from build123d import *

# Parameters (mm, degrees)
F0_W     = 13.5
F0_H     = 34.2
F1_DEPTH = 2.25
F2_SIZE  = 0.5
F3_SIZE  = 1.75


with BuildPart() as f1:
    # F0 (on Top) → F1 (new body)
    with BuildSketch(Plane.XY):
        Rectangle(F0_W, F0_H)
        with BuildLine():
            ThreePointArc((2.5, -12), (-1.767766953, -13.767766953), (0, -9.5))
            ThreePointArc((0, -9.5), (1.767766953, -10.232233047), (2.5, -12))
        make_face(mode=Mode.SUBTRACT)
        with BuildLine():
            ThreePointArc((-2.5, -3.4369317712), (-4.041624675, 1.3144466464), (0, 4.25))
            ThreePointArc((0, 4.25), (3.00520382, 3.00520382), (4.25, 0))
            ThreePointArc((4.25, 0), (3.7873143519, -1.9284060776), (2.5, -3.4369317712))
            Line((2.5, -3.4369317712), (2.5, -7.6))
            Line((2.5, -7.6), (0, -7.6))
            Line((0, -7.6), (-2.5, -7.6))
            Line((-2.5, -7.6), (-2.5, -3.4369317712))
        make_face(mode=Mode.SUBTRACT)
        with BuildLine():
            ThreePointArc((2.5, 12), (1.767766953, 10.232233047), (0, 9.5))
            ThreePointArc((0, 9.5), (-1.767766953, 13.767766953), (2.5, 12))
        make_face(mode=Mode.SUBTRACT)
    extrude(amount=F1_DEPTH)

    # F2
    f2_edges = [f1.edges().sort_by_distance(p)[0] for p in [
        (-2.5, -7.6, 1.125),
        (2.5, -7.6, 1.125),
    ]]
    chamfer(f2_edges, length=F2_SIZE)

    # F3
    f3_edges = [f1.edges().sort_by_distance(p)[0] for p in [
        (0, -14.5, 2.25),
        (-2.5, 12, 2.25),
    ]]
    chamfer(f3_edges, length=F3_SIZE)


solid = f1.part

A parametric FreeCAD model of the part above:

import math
import FreeCAD as App
import Part
import Sketcher
from FreeCAD import Vector
Q = App.Units.Quantity


def edges_at(feature, points):
    """Names of the edges that pass closest to the given points."""
    edges = feature.Shape.Edges
    near = lambda p: min(range(len(edges)), key=lambda i: edges[i].distToShape(Part.Vertex(*p))[0])
    return sorted({f"Edge{near(p) + 1}" for p in points})


def add_polygon(sketch, points):
    """Adds a closed chain of lines whose ends are joined by coincident constraints."""
    first, n = sketch.GeometryCount, len(points)
    for a, b in zip(points, points[1:] + points[:1]):
        sketch.addGeometry(Part.LineSegment(App.Vector(*a, 0), App.Vector(*b, 0)), False)
    for i in range(n):
        sketch.addConstraint(Sketcher.Constraint("Coincident", first + i, 2, first + (i + 1) % n, 1))

doc = App.newDocument("Part")
body = doc.addObject("PartDesign::Body", "Body")

# Sketch on XY plane
sketch1 = doc.addObject("Sketcher::SketchObject", "Sketch")
body.addObject(sketch1)
sketch1.AttachmentSupport = (doc.XY_Plane, [""])
sketch1.MapMode = "FlatFace"
add_polygon(sketch1, [(-6.8, 17.1), (-6.8, -17.1), (6.8, -17.1), (6.8, 17.1)])  # lines 0-3
sketch1.addGeometry(Part.ArcOfCircle(Part.Circle(Vector(0, -12, 0), Vector(0, 0, 1), 2.5), math.radians(0), math.radians(90)), False)  # 4
sketch1.addGeometry(Part.ArcOfCircle(Part.Circle(Vector(0, -12, 0), Vector(0, 0, 1), 2.5), math.radians(90), math.radians(360)), False)  # 5
sketch1.addGeometry(Part.LineSegment(Vector(-2.5, -7.6, 0), Vector(-2.5, -3.4, 0)), False)  # 6
sketch1.addGeometry(Part.ArcOfCircle(Part.Circle(Vector(0, 0, 0), Vector(0, 0, 1), 4.2), math.radians(90), math.radians(234)), False)  # 7
sketch1.addGeometry(Part.ArcOfCircle(Part.Circle(Vector(0, 0, 0), Vector(0, 0, 1), 4.2), math.radians(0), math.radians(90)), False)  # 8
sketch1.addGeometry(Part.ArcOfCircle(Part.Circle(Vector(0, 0, 0), Vector(0, 0, 1), 4.2), math.radians(-54), math.radians(0)), False)  # 9
sketch1.addGeometry(Part.LineSegment(Vector(2.5, -3.4, 0), Vector(2.5, -7.6, 0)), False)  # 10
sketch1.addGeometry(Part.LineSegment(Vector(2.5, -7.6, 0), Vector(-2.5, -7.6, 0)), False)  # 11
sketch1.addGeometry(Part.ArcOfCircle(Part.Circle(Vector(0, 12, 0), Vector(0, 0, 1), 2.5), math.radians(0), math.radians(270)), False)  # 12
sketch1.addGeometry(Part.ArcOfCircle(Part.Circle(Vector(0, 12, 0), Vector(0, 0, 1), 2.5), math.radians(-90), math.radians(0)), False)  # 13
sketch1.addConstraint([
    Sketcher.Constraint("Tangent", 4, 1, 5, 2),
    Sketcher.Constraint("Coincident", 5, 1, 4, 2),
    Sketcher.Constraint("Coincident", 6, 2, 7, 2),
    Sketcher.Constraint("Tangent", 7, 1, 8, 2),
    Sketcher.Constraint("Tangent", 8, 1, 9, 2),
    Sketcher.Constraint("Coincident", 9, 1, 10, 1),
    Sketcher.Constraint("Coincident", 10, 2, 11, 1),
    Sketcher.Constraint("Coincident", 11, 2, 6, 1),
    Sketcher.Constraint("Tangent", 12, 1, 13, 2),
    Sketcher.Constraint("Coincident", 13, 1, 12, 2),
    Sketcher.Constraint("Vertical", 0),
    Sketcher.Constraint("Horizontal", 1),
    Sketcher.Constraint("Vertical", 2),
    Sketcher.Constraint("Horizontal", 3),
    Sketcher.Constraint("Vertical", 6),
    Sketcher.Constraint("Vertical", 10),
    Sketcher.Constraint("Horizontal", 11),
    Sketcher.Constraint("Coincident", 7, 3, -1, 1),
    Sketcher.Constraint("Coincident", 9, 3, -1, 1),
    Sketcher.Constraint("Equal", 5, 12),
    Sketcher.Constraint("Symmetric", 4, 3, 12, 3, -1, 1),
    Sketcher.Constraint("Symmetric", 0, 2, 2, 2, -1, 1),
    Sketcher.Constraint("Symmetric", 4, 1, 12, 1, -1),
    Sketcher.Constraint("PointOnObject", 5, 1, -2),
    Sketcher.Constraint("PointOnObject", 7, 1, -2),
    Sketcher.Constraint("PointOnObject", 8, 1, -1),
    Sketcher.Constraint("PointOnObject", 13, 1, -2),
    Sketcher.Constraint("Horizontal", 5, 3, 4, 1),
    Sketcher.Constraint("Horizontal", 6, 2, 9, 1),
    Sketcher.Constraint("Vertical", 4, 1, 9, 1),
    Sketcher.Constraint("Radius", 4, Q("2.5 mm")),
    Sketcher.Constraint("Radius", 7, Q("4.25 mm")),
    Sketcher.Constraint("DistanceX", 1, 1, 1, 2, Q("13.5 mm")),
    Sketcher.Constraint("DistanceY", 0, 2, 0, 1, Q("34.2 mm")),
    Sketcher.Constraint("DistanceY", 4, 3, -1, 1, Q("12 mm")),
    Sketcher.Constraint("DistanceY", 10, 2, -1, 1, Q("7.6 mm")),
])
pad1 = doc.addObject("PartDesign::Pad", "Pad")
body.addObject(pad1)
pad1.Profile = sketch1
pad1.Length = 2.25
doc.recompute()

chamfer = doc.addObject("PartDesign::Chamfer", "Chamfer")
body.addObject(chamfer)
chamfer.Base = (pad1, edges_at(pad1, [(-2.5, -7.6, 1.125), (2.5, -7.6, 1.125)]))
chamfer.Size = 0.5
doc.recompute()

chamfer2 = doc.addObject("PartDesign::Chamfer", "Chamfer001")
body.addObject(chamfer2)
chamfer2.Base = (chamfer, edges_at(chamfer, [(-1.768, -13.768, 2.25), (-1.768, 13.768, 2.25)]))
chamfer2.Size = 1.75

doc.recompute()
